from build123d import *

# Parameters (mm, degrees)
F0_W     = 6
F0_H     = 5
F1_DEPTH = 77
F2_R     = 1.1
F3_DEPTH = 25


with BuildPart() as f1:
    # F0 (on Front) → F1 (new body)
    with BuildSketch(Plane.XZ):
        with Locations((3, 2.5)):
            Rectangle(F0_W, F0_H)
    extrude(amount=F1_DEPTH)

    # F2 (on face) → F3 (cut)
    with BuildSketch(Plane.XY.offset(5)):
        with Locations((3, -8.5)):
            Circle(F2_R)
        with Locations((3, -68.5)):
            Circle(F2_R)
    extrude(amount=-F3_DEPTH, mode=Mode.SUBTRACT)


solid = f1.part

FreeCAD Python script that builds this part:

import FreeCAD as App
import Part
import Sketcher

V = App.Vector

doc = App.newDocument("Part")
params = doc.addObject("Spreadsheet::Sheet", "Params")
for row, (alias, value) in enumerate([
    ("sketch1_width", "6 mm"),
    ("sketch1_height", "5 mm"),
    ("pad1_length", "77 mm"),
    ("sketch2_diameter", "2.2 mm"),
    ("pocket1_length", "25 mm"),
], start=1):
    params.set(f"A{row}", alias)
    params.set(f"B{row}", "=" + value)
    params.setAlias(f"B{row}", alias)

body = doc.addObject("PartDesign::Body", "Body")

# Sketch on XZ plane
sketch1 = body.newObject("Sketcher::SketchObject", "Sketch")
sketch1.AttachmentSupport = (doc.getObject("XZ_Plane"), [""])
sketch1.MapMode = "FlatFace"
sketch1.addGeometry([
    Part.LineSegment(V(0, 5, 0), V(0, 0, 0)),
    Part.LineSegment(V(0, 0, 0), V(6, 0, 0)),
    Part.LineSegment(V(6, 0, 0), V(6, 5, 0)),
    Part.LineSegment(V(6, 5, 0), V(0, 5, 0)),
], False)
sketch1.addConstraint([
    Sketcher.Constraint("Coincident", 0, 2, 1, 1),
    Sketcher.Constraint("Coincident", 1, 2, 2, 1),
    Sketcher.Constraint("Coincident", 2, 2, 3, 1),
    Sketcher.Constraint("Coincident", 3, 2, 0, 1),
    Sketcher.Constraint("Vertical", 0),
    Sketcher.Constraint("Horizontal", 1),
    Sketcher.Constraint("Vertical", 2),
    Sketcher.Constraint("Horizontal", 3),
    Sketcher.Constraint("Coincident", 0, 2, -1, 1),
    Sketcher.Constraint("DistanceX", 1, 1, 1, 2, 6.0),
    Sketcher.Constraint("DistanceY", 0, 2, 0, 1, 5.0),
])
sketch1.setExpression("Constraints[9]", "Params.sketch1_width")
sketch1.setExpression("Constraints[10]", "Params.sketch1_height")
pad1 = body.newObject("PartDesign::Pad", "Pad")
pad1.Profile = sketch1
pad1.setExpression("Length", "Params.pad1_length")

# Sketch on XY plane
sketch2 = body.newObject("Sketcher::SketchObject", "Sketch001")
sketch2.AttachmentSupport = (doc.getObject("XY_Plane"), [""])
sketch2.MapMode = "FlatFace"
sketch2.AttachmentOffset = App.Placement(V(0, 0, 5), App.Rotation())
sketch2.addGeometry([
    Part.Circle(V(3, -8.5, 0), V(0, 0, 1), 1.1),
    Part.Circle(V(3, -68.5, 0), V(0, 0, 1), 1.1),
], False)
sketch2.addConstraint([
    Sketcher.Constraint("Equal", 0, 1),
    Sketcher.Constraint("Vertical", 0, 3, 1, 3),
    Sketcher.Constraint("Diameter", 0, 2.2),
    Sketcher.Constraint("DistanceX", -1, 1, 0, 3, 3.0),
    Sketcher.Constraint("DistanceY", 1, 3, 0, 3, 60.0),
    Sketcher.Constraint("DistanceY", 0, 3, -1, 1, 8.5),
])
sketch2.setExpression("Constraints[2]", "Params.sketch2_diameter")
pocket1 = body.newObject("PartDesign::Pocket", "Pocket")
pocket1.Profile = sketch2
pocket1.setExpression("Length", "Params.pocket1_length")

doc.recompute()
